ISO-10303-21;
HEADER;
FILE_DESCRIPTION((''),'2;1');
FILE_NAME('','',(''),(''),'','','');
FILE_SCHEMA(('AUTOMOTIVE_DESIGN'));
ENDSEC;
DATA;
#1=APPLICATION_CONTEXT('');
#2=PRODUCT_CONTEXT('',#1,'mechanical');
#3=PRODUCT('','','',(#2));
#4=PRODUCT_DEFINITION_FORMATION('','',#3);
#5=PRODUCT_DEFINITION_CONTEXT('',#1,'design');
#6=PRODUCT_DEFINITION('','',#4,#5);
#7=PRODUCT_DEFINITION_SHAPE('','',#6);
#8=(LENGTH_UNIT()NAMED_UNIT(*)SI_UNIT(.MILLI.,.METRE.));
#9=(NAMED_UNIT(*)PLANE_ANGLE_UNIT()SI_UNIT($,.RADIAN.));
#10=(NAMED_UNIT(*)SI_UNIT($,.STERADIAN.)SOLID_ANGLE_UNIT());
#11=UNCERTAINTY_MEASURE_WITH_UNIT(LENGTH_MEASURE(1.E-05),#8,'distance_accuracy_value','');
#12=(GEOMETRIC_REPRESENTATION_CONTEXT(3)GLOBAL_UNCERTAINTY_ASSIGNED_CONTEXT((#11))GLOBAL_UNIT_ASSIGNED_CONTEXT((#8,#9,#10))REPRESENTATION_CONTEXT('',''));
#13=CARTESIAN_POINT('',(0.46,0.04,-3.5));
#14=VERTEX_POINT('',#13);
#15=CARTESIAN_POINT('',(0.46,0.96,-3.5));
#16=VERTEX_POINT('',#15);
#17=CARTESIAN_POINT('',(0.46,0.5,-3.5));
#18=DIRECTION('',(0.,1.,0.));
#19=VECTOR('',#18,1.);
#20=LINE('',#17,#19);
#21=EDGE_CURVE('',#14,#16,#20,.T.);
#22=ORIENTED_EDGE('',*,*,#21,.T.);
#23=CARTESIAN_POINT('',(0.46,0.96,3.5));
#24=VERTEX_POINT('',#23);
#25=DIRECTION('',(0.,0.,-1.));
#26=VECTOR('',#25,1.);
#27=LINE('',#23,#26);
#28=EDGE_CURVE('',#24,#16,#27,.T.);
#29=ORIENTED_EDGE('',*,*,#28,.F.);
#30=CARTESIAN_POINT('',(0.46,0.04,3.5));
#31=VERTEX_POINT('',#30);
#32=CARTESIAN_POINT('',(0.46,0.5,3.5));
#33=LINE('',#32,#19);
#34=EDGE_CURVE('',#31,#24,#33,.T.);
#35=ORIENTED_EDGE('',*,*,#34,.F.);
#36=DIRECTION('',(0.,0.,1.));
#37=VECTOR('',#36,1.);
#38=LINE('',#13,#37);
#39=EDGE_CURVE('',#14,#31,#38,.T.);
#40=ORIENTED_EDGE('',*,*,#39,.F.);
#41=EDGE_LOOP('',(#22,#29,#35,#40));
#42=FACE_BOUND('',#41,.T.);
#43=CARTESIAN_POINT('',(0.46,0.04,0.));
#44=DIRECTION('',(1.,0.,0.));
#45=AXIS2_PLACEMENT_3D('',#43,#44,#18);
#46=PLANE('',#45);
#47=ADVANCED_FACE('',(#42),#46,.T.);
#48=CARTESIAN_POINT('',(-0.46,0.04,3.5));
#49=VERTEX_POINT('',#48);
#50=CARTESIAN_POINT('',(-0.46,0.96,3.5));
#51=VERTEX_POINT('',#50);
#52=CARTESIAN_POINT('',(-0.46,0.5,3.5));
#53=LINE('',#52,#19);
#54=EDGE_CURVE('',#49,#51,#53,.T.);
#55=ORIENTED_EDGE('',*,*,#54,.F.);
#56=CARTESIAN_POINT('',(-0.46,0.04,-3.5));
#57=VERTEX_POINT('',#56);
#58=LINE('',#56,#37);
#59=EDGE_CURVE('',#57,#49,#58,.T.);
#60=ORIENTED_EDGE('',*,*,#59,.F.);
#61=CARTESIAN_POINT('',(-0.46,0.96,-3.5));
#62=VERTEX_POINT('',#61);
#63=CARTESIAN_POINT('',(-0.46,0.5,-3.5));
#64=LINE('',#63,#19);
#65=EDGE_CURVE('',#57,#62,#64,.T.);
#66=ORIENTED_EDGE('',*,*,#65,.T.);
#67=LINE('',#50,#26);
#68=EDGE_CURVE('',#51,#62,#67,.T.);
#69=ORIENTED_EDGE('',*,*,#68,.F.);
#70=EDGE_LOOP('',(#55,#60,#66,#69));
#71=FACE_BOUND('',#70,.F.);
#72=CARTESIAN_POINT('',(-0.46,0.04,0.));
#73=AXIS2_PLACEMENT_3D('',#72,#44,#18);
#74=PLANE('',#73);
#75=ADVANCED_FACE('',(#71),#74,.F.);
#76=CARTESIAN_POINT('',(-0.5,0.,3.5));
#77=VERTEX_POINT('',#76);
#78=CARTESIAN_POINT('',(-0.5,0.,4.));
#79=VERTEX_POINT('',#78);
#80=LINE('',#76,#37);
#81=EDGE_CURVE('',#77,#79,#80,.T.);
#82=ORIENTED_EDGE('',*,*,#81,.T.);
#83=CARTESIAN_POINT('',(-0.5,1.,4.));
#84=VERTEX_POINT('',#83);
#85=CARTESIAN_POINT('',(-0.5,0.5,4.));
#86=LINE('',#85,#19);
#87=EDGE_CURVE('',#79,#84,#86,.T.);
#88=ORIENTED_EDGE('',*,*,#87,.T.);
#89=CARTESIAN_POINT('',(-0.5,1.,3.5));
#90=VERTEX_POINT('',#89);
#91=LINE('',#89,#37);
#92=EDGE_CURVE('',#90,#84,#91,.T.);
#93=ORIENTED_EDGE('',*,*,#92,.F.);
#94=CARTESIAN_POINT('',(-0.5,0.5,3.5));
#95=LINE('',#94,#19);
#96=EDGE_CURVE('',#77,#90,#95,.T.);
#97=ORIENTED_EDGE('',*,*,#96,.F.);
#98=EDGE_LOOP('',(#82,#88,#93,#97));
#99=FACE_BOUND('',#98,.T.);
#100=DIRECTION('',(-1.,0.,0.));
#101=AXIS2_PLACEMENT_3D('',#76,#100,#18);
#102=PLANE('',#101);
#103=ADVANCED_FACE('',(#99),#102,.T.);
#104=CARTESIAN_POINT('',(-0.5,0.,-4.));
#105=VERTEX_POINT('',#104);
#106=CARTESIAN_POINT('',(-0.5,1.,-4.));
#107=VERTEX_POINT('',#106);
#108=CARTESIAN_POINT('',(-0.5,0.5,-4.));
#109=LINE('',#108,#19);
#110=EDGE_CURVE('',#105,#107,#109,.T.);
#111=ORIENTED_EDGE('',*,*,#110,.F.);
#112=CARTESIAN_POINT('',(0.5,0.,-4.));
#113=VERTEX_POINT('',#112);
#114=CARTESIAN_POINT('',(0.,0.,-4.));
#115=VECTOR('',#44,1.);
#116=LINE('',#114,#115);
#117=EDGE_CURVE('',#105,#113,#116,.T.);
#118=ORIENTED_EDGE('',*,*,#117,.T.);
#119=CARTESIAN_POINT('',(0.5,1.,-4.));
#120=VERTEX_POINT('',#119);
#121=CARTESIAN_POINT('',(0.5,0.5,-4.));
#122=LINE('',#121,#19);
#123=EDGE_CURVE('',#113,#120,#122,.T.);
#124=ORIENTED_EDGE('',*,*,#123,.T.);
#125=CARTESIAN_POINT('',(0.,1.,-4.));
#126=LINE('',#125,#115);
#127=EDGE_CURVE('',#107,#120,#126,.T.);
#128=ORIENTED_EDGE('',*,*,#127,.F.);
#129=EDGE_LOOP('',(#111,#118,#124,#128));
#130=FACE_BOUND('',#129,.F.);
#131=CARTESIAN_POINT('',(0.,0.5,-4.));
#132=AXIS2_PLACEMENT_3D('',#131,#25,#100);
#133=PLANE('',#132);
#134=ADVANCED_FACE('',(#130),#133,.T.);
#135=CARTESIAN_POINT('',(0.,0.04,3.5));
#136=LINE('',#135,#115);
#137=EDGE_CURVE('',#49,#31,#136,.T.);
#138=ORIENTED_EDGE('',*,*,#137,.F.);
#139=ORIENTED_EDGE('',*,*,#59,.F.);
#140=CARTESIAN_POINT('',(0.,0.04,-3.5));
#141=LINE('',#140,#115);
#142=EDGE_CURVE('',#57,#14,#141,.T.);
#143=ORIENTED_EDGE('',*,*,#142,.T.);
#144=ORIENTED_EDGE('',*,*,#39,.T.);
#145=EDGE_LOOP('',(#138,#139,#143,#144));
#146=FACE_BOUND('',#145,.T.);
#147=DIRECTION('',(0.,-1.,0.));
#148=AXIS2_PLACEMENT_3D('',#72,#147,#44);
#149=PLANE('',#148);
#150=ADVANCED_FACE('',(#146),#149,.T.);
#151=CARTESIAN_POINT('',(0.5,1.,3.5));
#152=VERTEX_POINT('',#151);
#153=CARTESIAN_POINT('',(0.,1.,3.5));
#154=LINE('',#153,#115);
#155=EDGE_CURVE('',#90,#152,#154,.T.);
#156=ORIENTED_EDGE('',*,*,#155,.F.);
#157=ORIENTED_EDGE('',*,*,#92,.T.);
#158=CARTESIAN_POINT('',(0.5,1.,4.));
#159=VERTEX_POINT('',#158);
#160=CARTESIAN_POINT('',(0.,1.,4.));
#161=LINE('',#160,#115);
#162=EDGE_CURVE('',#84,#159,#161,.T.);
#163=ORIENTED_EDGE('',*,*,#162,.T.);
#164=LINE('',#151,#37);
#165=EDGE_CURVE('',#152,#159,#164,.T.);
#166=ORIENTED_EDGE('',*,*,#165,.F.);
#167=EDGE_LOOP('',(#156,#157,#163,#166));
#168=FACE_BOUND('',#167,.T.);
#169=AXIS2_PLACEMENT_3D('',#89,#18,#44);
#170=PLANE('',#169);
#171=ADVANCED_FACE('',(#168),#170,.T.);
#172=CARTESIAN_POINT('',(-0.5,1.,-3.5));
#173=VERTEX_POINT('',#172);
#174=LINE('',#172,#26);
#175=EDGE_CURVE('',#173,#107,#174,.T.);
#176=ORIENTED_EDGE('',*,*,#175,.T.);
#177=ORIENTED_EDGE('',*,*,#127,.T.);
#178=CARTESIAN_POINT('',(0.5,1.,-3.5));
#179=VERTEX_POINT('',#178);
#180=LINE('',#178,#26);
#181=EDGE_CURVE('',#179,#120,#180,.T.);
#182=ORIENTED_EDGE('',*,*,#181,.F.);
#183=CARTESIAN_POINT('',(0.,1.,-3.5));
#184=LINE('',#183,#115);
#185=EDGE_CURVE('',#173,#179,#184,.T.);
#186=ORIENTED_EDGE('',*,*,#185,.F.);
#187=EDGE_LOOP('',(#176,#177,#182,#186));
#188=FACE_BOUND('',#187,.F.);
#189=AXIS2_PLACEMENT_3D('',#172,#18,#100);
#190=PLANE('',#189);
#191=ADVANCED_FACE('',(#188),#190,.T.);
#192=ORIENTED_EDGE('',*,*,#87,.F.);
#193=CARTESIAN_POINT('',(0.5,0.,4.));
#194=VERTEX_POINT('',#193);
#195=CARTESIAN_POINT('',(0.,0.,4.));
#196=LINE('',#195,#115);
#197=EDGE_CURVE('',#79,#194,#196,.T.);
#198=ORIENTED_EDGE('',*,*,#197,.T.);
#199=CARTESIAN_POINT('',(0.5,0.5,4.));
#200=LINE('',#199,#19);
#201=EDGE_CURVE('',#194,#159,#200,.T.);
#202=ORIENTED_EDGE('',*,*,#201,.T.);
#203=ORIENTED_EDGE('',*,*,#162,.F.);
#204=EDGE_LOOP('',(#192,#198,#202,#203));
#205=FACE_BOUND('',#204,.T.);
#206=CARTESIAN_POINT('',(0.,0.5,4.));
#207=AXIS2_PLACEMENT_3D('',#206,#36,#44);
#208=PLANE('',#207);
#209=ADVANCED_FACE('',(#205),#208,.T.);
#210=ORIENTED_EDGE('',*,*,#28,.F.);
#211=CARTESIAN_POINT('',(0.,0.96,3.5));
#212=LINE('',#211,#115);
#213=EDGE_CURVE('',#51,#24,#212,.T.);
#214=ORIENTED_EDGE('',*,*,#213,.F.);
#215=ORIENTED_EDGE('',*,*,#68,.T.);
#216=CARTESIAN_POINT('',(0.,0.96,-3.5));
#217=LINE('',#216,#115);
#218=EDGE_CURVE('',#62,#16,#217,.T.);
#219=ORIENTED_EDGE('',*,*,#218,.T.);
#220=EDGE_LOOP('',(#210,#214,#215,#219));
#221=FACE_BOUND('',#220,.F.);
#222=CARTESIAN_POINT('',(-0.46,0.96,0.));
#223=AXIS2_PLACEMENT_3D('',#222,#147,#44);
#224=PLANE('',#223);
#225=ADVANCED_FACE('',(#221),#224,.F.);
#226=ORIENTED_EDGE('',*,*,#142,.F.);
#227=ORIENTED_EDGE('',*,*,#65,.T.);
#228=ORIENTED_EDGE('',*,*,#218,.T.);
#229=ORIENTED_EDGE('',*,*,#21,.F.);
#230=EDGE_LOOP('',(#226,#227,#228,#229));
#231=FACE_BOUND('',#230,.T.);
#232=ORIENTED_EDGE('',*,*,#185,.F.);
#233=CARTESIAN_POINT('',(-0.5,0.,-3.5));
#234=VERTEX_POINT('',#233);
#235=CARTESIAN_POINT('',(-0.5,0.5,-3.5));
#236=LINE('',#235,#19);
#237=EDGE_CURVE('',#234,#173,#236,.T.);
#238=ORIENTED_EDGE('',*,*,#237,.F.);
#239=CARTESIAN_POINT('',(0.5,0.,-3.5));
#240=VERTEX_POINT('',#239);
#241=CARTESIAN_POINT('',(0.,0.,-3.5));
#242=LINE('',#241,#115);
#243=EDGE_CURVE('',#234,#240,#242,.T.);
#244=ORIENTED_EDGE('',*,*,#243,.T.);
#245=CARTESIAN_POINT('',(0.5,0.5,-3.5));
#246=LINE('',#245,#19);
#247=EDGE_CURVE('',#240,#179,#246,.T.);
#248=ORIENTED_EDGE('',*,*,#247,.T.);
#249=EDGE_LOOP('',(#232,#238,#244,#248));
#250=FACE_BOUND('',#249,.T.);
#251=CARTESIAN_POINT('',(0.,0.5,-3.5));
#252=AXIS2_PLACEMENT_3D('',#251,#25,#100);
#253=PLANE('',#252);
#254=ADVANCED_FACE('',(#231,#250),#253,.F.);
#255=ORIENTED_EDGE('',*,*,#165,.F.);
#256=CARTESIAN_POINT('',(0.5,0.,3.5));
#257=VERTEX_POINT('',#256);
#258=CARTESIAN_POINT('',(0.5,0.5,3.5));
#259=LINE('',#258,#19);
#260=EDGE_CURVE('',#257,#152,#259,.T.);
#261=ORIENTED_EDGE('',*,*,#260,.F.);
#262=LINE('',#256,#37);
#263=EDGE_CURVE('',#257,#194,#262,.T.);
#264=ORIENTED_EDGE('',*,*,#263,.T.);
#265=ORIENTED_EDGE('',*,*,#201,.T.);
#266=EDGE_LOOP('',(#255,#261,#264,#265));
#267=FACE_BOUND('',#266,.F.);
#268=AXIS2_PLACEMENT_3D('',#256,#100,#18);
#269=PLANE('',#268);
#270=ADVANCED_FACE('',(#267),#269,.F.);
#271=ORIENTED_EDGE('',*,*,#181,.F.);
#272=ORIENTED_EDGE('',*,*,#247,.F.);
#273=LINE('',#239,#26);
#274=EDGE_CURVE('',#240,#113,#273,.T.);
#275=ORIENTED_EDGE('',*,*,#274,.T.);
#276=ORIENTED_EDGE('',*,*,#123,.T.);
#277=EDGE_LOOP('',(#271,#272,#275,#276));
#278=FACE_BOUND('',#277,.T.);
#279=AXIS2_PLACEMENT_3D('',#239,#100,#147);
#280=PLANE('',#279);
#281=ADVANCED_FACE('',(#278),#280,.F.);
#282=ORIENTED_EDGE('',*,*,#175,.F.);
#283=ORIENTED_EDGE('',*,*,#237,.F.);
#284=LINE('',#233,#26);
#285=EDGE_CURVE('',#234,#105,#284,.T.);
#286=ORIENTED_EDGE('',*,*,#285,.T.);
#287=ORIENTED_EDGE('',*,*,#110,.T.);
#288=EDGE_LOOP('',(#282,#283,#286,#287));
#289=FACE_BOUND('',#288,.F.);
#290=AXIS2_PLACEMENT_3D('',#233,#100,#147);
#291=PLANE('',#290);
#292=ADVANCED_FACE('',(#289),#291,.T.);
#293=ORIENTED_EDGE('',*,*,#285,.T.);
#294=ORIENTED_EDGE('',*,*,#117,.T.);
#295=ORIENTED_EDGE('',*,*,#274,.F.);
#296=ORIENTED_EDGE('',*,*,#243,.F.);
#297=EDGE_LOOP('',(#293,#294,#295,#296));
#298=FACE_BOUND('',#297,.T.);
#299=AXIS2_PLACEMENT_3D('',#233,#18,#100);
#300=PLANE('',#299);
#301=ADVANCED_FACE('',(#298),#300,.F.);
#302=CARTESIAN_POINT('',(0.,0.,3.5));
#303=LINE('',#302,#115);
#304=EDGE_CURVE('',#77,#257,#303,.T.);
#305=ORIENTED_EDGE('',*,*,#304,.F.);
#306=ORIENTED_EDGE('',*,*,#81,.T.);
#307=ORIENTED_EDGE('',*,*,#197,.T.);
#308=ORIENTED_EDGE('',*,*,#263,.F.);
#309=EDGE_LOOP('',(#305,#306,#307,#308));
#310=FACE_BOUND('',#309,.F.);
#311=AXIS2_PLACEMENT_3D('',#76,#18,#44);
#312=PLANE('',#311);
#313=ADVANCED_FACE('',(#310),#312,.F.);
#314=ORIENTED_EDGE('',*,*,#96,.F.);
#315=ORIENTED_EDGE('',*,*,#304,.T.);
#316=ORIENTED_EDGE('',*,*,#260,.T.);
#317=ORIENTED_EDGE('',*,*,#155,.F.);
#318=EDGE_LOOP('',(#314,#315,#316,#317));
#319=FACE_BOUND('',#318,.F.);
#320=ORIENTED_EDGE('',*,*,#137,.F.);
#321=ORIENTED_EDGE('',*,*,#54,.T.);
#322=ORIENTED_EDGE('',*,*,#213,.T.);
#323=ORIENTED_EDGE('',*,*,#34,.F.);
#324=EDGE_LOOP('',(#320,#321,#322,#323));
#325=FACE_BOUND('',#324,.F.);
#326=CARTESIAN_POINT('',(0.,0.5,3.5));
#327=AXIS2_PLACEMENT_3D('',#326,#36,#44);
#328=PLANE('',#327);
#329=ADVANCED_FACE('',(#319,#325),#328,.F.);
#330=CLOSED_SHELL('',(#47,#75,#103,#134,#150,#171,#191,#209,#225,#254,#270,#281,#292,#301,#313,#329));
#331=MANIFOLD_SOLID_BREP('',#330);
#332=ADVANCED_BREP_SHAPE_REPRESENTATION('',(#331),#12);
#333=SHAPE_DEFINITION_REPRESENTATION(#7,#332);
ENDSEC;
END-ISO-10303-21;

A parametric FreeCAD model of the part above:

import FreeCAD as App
import Part
import Sketcher
Q = App.Units.Quantity


def add_polygon(sketch, points):
    """Adds a closed chain of lines whose ends are joined by coincident constraints."""
    first, n = sketch.GeometryCount, len(points)
    for a, b in zip(points, points[1:] + points[:1]):
        sketch.addGeometry(Part.LineSegment(App.Vector(*a, 0), App.Vector(*b, 0)), False)
    for i in range(n):
        sketch.addConstraint(Sketcher.Constraint("Coincident", first + i, 2, first + (i + 1) % n, 1))

doc = App.newDocument("Part")
body = doc.addObject("PartDesign::Body", "Body")

sketch1 = doc.addObject("Sketcher::SketchObject", "Sketch")
body.addObject(sketch1)
sketch1.AttachmentSupport = (doc.XY_Plane, [""])
sketch1.MapMode = "FlatFace"
add_polygon(sketch1, [(-0.5, 1), (-0.5, 0), (0.5, 0), (0.5, 1)])
sketch1.addConstraint([
    Sketcher.Constraint("Vertical", 0),
    Sketcher.Constraint("Horizontal", 1),
    Sketcher.Constraint("Vertical", 2),
    Sketcher.Constraint("Horizontal", 3),
    Sketcher.Constraint("Equal", 3, 0),
    Sketcher.Constraint("DistanceX", 1, 1, 1, 2, Q("0.92 mm")),
    Sketcher.Constraint("DistanceX", 0, 2, -1, 1, Q("0.46 mm")),
    Sketcher.Constraint("DistanceY", -1, 1, 0, 2, Q("0.04 mm")),
])
pad1 = doc.addObject("PartDesign::Pad", "Pad")
body.addObject(pad1)
pad1.Profile = sketch1
pad1.Length = 7
pad1.Midplane = True

sketch2 = doc.addObject("Sketcher::SketchObject", "Sketch001")
body.addObject(sketch2)
sketch2.AttachmentSupport = (doc.XY_Plane, [""])
sketch2.MapMode = "FlatFace"
sketch2.AttachmentOffset = App.Placement(App.Vector(0, 0, 3.5), App.Rotation())
add_polygon(sketch2, [(-0.5, 1), (-0.5, 0), (0.5, 0), (0.5, 1)])
sketch2.addConstraint([
    Sketcher.Constraint("Vertical", 0),
    Sketcher.Constraint("Horizontal", 1),
    Sketcher.Constraint("Vertical", 2),
    Sketcher.Constraint("Horizontal", 3),
    Sketcher.Constraint("Symmetric", 0, 2, 1, 2, -1, 1),
    Sketcher.Constraint("Equal", 3, 0),
    Sketcher.Constraint("DistanceX", 1, 1, 1, 2, Q("1 mm")),
])
pad2 = doc.addObject("PartDesign::Pad", "Pad001")
body.addObject(pad2)
pad2.Profile = sketch2
pad2.Length = 0.5
doc.recompute()

mirrored = doc.addObject("PartDesign::Mirrored", "Mirrored")
body.addObject(mirrored)
mirrored.Originals = [pad2]
mirrored.MirrorPlane = (doc.XY_Plane, [""])
body.Tip = mirrored

doc.recompute()
